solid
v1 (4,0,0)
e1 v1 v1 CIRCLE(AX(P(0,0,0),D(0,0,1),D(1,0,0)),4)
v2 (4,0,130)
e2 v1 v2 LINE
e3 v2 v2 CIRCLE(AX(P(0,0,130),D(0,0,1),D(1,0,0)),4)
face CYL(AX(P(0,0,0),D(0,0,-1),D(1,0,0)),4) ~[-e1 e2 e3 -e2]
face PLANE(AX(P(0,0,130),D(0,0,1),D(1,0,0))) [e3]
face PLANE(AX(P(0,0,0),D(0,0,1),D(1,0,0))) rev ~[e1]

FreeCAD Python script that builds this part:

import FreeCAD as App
import Part
import Sketcher
Q = App.Units.Quantity

doc = App.newDocument("Part")
body = doc.addObject("PartDesign::Body", "Body")

sketch1 = doc.addObject("Sketcher::SketchObject", "Sketch")
body.addObject(sketch1)
sketch1.AttachmentSupport = (doc.XY_Plane, [""])
sketch1.MapMode = "FlatFace"
sketch1.addGeometry(Part.Circle(App.Vector(0, 0, 0), App.Vector(0, 0, 1), 4), False)
sketch1.addConstraint([
    Sketcher.Constraint("Coincident", 0, 3, -1, 1),
    Sketcher.Constraint("Diameter", 0, Q("8 mm")),
])
pad1 = doc.addObject("PartDesign::Pad", "Pad")
body.addObject(pad1)
pad1.Profile = sketch1
pad1.Length = 130

doc.recompute()
